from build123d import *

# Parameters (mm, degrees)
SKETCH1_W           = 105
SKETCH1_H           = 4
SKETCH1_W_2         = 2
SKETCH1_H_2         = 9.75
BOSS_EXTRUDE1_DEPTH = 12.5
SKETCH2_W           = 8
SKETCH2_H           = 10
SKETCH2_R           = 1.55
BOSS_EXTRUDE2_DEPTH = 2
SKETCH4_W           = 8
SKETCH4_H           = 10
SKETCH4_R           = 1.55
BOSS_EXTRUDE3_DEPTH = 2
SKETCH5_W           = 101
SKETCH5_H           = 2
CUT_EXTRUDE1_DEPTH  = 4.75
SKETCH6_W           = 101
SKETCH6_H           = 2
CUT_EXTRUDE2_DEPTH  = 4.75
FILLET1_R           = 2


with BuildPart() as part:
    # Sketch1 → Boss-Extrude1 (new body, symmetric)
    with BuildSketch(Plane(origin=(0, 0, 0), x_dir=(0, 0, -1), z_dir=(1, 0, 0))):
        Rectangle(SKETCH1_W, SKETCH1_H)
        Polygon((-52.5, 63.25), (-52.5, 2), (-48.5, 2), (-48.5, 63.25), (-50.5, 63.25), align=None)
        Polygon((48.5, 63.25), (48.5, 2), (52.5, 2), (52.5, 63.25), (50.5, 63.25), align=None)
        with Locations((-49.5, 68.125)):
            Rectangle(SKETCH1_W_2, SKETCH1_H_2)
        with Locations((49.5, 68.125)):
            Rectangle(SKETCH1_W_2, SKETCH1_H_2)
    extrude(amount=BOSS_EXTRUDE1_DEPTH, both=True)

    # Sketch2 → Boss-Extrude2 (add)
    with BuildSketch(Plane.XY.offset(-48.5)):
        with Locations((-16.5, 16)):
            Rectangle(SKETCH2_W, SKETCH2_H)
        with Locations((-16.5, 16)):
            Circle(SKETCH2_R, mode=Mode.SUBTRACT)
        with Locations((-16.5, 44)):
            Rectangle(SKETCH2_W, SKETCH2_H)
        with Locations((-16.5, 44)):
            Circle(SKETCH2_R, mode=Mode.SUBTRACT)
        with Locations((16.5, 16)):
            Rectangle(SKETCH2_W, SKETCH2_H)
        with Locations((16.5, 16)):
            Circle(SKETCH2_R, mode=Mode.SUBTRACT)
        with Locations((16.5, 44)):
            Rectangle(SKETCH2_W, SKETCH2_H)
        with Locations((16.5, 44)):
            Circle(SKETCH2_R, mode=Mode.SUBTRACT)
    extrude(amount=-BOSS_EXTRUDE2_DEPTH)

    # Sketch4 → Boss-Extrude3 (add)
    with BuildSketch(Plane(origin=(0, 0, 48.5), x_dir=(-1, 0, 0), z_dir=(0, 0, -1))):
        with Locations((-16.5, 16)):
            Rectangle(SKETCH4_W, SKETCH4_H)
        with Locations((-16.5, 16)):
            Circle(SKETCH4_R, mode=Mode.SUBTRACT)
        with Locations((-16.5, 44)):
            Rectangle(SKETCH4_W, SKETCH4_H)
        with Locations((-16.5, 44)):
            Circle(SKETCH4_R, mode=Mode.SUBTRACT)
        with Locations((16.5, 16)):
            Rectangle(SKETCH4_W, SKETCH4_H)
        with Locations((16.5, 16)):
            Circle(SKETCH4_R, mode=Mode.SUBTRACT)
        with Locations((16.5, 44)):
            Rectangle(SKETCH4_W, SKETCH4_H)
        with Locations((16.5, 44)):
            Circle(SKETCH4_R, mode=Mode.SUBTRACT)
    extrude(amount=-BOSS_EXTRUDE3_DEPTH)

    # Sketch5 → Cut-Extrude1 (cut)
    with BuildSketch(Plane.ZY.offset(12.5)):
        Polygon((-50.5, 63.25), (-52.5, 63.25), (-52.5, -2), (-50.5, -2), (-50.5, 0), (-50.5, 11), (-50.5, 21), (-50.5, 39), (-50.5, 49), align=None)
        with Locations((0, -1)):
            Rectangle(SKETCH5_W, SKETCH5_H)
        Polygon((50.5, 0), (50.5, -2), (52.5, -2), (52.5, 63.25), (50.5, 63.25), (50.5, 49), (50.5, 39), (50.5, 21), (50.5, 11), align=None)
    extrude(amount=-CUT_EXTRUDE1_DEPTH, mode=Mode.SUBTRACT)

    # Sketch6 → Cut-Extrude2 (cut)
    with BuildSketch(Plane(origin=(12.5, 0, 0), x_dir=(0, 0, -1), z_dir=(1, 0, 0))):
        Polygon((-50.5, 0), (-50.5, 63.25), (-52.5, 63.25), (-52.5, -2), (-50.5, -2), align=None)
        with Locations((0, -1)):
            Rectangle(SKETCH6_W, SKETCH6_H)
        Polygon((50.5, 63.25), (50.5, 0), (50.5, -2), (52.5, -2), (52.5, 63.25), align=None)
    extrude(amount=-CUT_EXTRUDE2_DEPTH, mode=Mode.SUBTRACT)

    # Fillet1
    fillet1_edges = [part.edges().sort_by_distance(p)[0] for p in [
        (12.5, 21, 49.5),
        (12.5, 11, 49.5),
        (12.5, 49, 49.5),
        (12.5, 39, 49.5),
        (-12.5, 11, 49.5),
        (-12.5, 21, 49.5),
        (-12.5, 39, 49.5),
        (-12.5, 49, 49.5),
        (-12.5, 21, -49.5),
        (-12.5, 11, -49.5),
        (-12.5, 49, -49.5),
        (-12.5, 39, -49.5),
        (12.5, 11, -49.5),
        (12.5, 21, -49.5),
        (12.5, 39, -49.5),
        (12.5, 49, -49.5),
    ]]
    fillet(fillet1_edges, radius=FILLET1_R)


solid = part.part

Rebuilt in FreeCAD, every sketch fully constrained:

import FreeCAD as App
import Part
import Sketcher
Q = App.Units.Quantity


def edges_at(feature, points):
    """Names of the edges that pass closest to the given points."""
    edges = feature.Shape.Edges
    near = lambda p: min(range(len(edges)), key=lambda i: edges[i].distToShape(Part.Vertex(*p))[0])
    return sorted({f"Edge{near(p) + 1}" for p in points})


def add_polygon(sketch, points):
    """Adds a closed chain of lines whose ends are joined by coincident constraints."""
    first, n = sketch.GeometryCount, len(points)
    for a, b in zip(points, points[1:] + points[:1]):
        sketch.addGeometry(Part.LineSegment(App.Vector(*a, 0), App.Vector(*b, 0)), False)
    for i in range(n):
        sketch.addConstraint(Sketcher.Constraint("Coincident", first + i, 2, first + (i + 1) % n, 1))

doc = App.newDocument("Part")
params = doc.addObject("Spreadsheet::Sheet", "Params")
for row, (alias, value) in enumerate([
    ("sketch1_width", "71 mm"),
    ("sketch1_height", "105 mm"),
    ("sketch1_height2", "2 mm"),
    ("sketch1_width2", "65.25 mm"),
    ("pad1_length", "25 mm"),
    ("sketch2_diameter", "3.1 mm"),
    ("sketch2_width", "8 mm"),
    ("sketch2_height", "10 mm"),
    ("pad2_length", "2 mm"),
    ("sketch3_diameter", "3.1 mm"),
    ("sketch3_width", "8 mm"),
    ("sketch3_height", "10 mm"),
    ("pad3_length", "2 mm"),
    ("sketch4_height", "2 mm"),
    ("sketch4_height2", "105 mm"),
    ("sketch4_width", "65.25 mm"),
    ("pocket1_length", "4.75 mm"),
    ("sketch5_height", "2 mm"),
    ("sketch5_height2", "105 mm"),
    ("sketch5_width", "65.25 mm"),
    ("pocket2_length", "4.75 mm"),
    ("fillet_radius", "2 mm"),
], start=1):
    params.set(f"A{row}", alias)
    params.set(f"B{row}", "=" + value)
    params.setAlias(f"B{row}", alias)

body = doc.addObject("PartDesign::Body", "Body")

sketch1 = body.newObject("Sketcher::SketchObject", "Sketch")
sketch1.AttachmentSupport = (doc.getObject("YZ_Plane"), [""])
sketch1.MapMode = "FlatFace"
add_polygon(sketch1, [(-2, 52.5), (-2, -52.5), (63.25, -52.5), (63.25, -50.5), (73, -50.5), (73, -48.5), (2, -48.5), (2, 48.5), (73, 48.5), (73, 50.5), (63.25, 50.5), (63.25, 52.5)])
sketch1.addConstraint(Sketcher.Constraint("Vertical", 0))
sketch1.addConstraint(Sketcher.Constraint("Horizontal", 1))
sketch1.addConstraint(Sketcher.Constraint("Vertical", 2))
sketch1.addConstraint(Sketcher.Constraint("Horizontal", 3))
sketch1.addConstraint(Sketcher.Constraint("Vertical", 4))
sketch1.addConstraint(Sketcher.Constraint("Horizontal", 5))
sketch1.addConstraint(Sketcher.Constraint("Vertical", 6))
sketch1.addConstraint(Sketcher.Constraint("Horizontal", 7))
sketch1.addConstraint(Sketcher.Constraint("Vertical", 8))
sketch1.addConstraint(Sketcher.Constraint("Horizontal", 9))
sketch1.addConstraint(Sketcher.Constraint("Vertical", 10))
sketch1.addConstraint(Sketcher.Constraint("Horizontal", 11))
sketch1.addConstraint(Sketcher.Constraint("Symmetric", 4, 2, 7, 2, -1))
sketch1.addConstraint(Sketcher.Constraint("Symmetric", 2, 2, 9, 2, -1))
sketch1.addConstraint(Sketcher.Constraint("Equal", 2, 4))
sketch1.addConstraint(Sketcher.Constraint("Equal", 8, 10))
sketch1.addConstraint(Sketcher.Constraint("DistanceX", 5, 2, 5, 1, Q("71 mm")))
sketch1.addConstraint(Sketcher.Constraint("DistanceY", 0, 2, 0, 1, Q("105 mm")))
sketch1.addConstraint(Sketcher.Constraint("DistanceY", 2, 1, 2, 2, Q("2 mm")))
sketch1.addConstraint(Sketcher.Constraint("DistanceX", 0, 2, -1, 1, Q("2 mm")))
sketch1.addConstraint(Sketcher.Constraint("DistanceX", -1, 1, 3, 2, Q("73 mm")))
sketch1.addConstraint(Sketcher.Constraint("DistanceX", 1, 1, 1, 2, Q("65.25 mm")))
sketch1.setExpression("Constraints[28]", "Params.sketch1_width")
sketch1.setExpression("Constraints[29]", "Params.sketch1_height")
sketch1.setExpression("Constraints[30]", "Params.sketch1_height2")
sketch1.setExpression("Constraints[33]", "Params.sketch1_width2")
pad1 = body.newObject("PartDesign::Pad", "Pad")
pad1.Profile = sketch1
pad1.setExpression("Length", "Params.pad1_length")
pad1.Midplane = True

sketch2 = body.newObject("Sketcher::SketchObject", "Sketch001")
sketch2.AttachmentSupport = (doc.getObject("XY_Plane"), [""])
sketch2.MapMode = "FlatFace"
sketch2.AttachmentOffset = App.Placement(App.Vector(0, 0, -48.5), App.Rotation())
add_polygon(sketch2, [(-20.5, 21), (-20.5, 11), (-12.5, 11), (-12.5, 21)])
sketch2.addGeometry(Part.Circle(App.Vector(-16.5, 16, 0), App.Vector(0, 0, 1), 1.55), False)
add_polygon(sketch2, [(-20.5, 49), (-20.5, 39), (-12.5, 39), (-12.5, 49)])
sketch2.addGeometry(Part.Circle(App.Vector(-16.5, 44, 0), App.Vector(0, 0, 1), 1.55), False)
add_polygon(sketch2, [(12.5, 21), (12.5, 11), (20.5, 11), (20.5, 21)])
sketch2.addGeometry(Part.Circle(App.Vector(16.5, 16, 0), App.Vector(0, 0, 1), 1.55), False)
add_polygon(sketch2, [(12.5, 49), (12.5, 39), (20.5, 39), (20.5, 49)])
sketch2.addGeometry(Part.Circle(App.Vector(16.5, 44, 0), App.Vector(0, 0, 1), 1.55), False)
sketch2.addConstraint(Sketcher.Constraint("Vertical", 0))
sketch2.addConstraint(Sketcher.Constraint("Horizontal", 1))
sketch2.addConstraint(Sketcher.Constraint("Vertical", 2))
sketch2.addConstraint(Sketcher.Constraint("Horizontal", 3))
sketch2.addConstraint(Sketcher.Constraint("Vertical", 5))
sketch2.addConstraint(Sketcher.Constraint("Horizontal", 6))
sketch2.addConstraint(Sketcher.Constraint("Vertical", 7))
sketch2.addConstraint(Sketcher.Constraint("Horizontal", 8))
sketch2.addConstraint(Sketcher.Constraint("Vertical", 10))
sketch2.addConstraint(Sketcher.Constraint("Horizontal", 11))
sketch2.addConstraint(Sketcher.Constraint("Vertical", 12))
sketch2.addConstraint(Sketcher.Constraint("Horizontal", 13))
sketch2.addConstraint(Sketcher.Constraint("Vertical", 15))
sketch2.addConstraint(Sketcher.Constraint("Horizontal", 16))
sketch2.addConstraint(Sketcher.Constraint("Vertical", 17))
sketch2.addConstraint(Sketcher.Constraint("Horizontal", 18))
sketch2.addConstraint(Sketcher.Constraint("Equal", 4, 9))
sketch2.addConstraint(Sketcher.Constraint("Equal", 9, 14))
sketch2.addConstraint(Sketcher.Constraint("Equal", 14, 19))
sketch2.addConstraint(Sketcher.Constraint("Symmetric", 4, 3, 14, 3, -2))
sketch2.addConstraint(Sketcher.Constraint("Symmetric", 9, 3, 19, 3, -2))
sketch2.addConstraint(Sketcher.Constraint("Symmetric", 1, 2, 10, 2, -2))
sketch2.addConstraint(Sketcher.Constraint("Symmetric", 3, 2, 12, 2, -2))
sketch2.addConstraint(Sketcher.Constraint("Symmetric", 6, 2, 15, 2, -2))
sketch2.addConstraint(Sketcher.Constraint("Symmetric", 8, 2, 17, 2, -2))
sketch2.addConstraint(Sketcher.Constraint("Vertical", 4, 3, 9, 3))
sketch2.addConstraint(Sketcher.Constraint("Vertical", 3, 2, 5, 2))
sketch2.addConstraint(Sketcher.Constraint("Vertical", 2, 2, 6, 2))
sketch2.addConstraint(Sketcher.Constraint("Equal", 2, 5))
sketch2.addConstraint(Sketcher.Constraint("Diameter", 4, Q("3.1 mm")))
sketch2.addConstraint(Sketcher.Constraint("DistanceX", 1, 1, 1, 2, Q("8 mm")))
sketch2.addConstraint(Sketcher.Constraint("DistanceY", 0, 2, 0, 1, Q("10 mm")))
sketch2.addConstraint(Sketcher.Constraint("DistanceY", -1, 1, 4, 3, Q("16 mm")))
sketch2.addConstraint(Sketcher.Constraint("DistanceY", -1, 1, 9, 3, Q("44 mm")))
sketch2.addConstraint(Sketcher.Constraint("DistanceY", -1, 1, 0, 2, Q("11 mm")))
sketch2.addConstraint(Sketcher.Constraint("DistanceY", -1, 1, 5, 2, Q("39 mm")))
sketch2.addConstraint(Sketcher.Constraint("DistanceX", 4, 3, 14, 3, Q("33 mm")))
sketch2.addConstraint(Sketcher.Constraint("DistanceX", 0, 2, 4, 3, Q("4 mm")))
sketch2.setExpression("Constraints[45]", "Params.sketch2_diameter")
sketch2.setExpression("Constraints[46]", "Params.sketch2_width")
sketch2.setExpression("Constraints[47]", "Params.sketch2_height")
pad2 = body.newObject("PartDesign::Pad", "Pad001")
pad2.Profile = sketch2
pad2.setExpression("Length", "Params.pad2_length")
pad2.Reversed = True

sketch3 = body.newObject("Sketcher::SketchObject", "Sketch002")
sketch3.AttachmentSupport = (doc.getObject("XY_Plane"), [""])
sketch3.MapMode = "FlatFace"
sketch3.AttachmentOffset = App.Placement(App.Vector(0, 0, 48.5), App.Rotation())
add_polygon(sketch3, [(20.5, 21), (20.5, 11), (12.5, 11), (12.5, 21)])
sketch3.addGeometry(Part.Circle(App.Vector(16.5, 16, 0), App.Vector(0, 0, 1), 1.55), False)
add_polygon(sketch3, [(20.5, 49), (20.5, 39), (12.5, 39), (12.5, 49)])
sketch3.addGeometry(Part.Circle(App.Vector(16.5, 44, 0), App.Vector(0, 0, 1), 1.55), False)
add_polygon(sketch3, [(-12.5, 21), (-12.5, 11), (-20.5, 11), (-20.5, 21)])
sketch3.addGeometry(Part.Circle(App.Vector(-16.5, 16, 0), App.Vector(0, 0, 1), 1.55), False)
add_polygon(sketch3, [(-12.5, 49), (-12.5, 39), (-20.5, 39), (-20.5, 49)])
sketch3.addGeometry(Part.Circle(App.Vector(-16.5, 44, 0), App.Vector(0, 0, 1), 1.55), False)
sketch3.addConstraint(Sketcher.Constraint("Vertical", 0))
sketch3.addConstraint(Sketcher.Constraint("Horizontal", 1))
sketch3.addConstraint(Sketcher.Constraint("Vertical", 2))
sketch3.addConstraint(Sketcher.Constraint("Horizontal", 3))
sketch3.addConstraint(Sketcher.Constraint("Vertical", 5))
sketch3.addConstraint(Sketcher.Constraint("Horizontal", 6))
sketch3.addConstraint(Sketcher.Constraint("Vertical", 7))
sketch3.addConstraint(Sketcher.Constraint("Horizontal", 8))
sketch3.addConstraint(Sketcher.Constraint("Vertical", 10))
sketch3.addConstraint(Sketcher.Constraint("Horizontal", 11))
sketch3.addConstraint(Sketcher.Constraint("Vertical", 12))
sketch3.addConstraint(Sketcher.Constraint("Horizontal", 13))
sketch3.addConstraint(Sketcher.Constraint("Vertical", 15))
sketch3.addConstraint(Sketcher.Constraint("Horizontal", 16))
sketch3.addConstraint(Sketcher.Constraint("Vertical", 17))
sketch3.addConstraint(Sketcher.Constraint("Horizontal", 18))
sketch3.addConstraint(Sketcher.Constraint("Equal", 4, 9))
sketch3.addConstraint(Sketcher.Constraint("Equal", 9, 14))
sketch3.addConstraint(Sketcher.Constraint("Equal", 14, 19))
sketch3.addConstraint(Sketcher.Constraint("Symmetric", 4, 3, 14, 3, -2))
sketch3.addConstraint(Sketcher.Constraint("Symmetric", 9, 3, 19, 3, -2))
sketch3.addConstraint(Sketcher.Constraint("Symmetric", 1, 2, 10, 2, -2))
sketch3.addConstraint(Sketcher.Constraint("Symmetric", 3, 2, 12, 2, -2))
sketch3.addConstraint(Sketcher.Constraint("Symmetric", 6, 2, 15, 2, -2))
sketch3.addConstraint(Sketcher.Constraint("Symmetric", 8, 2, 17, 2, -2))
sketch3.addConstraint(Sketcher.Constraint("Vertical", 4, 3, 9, 3))
sketch3.addConstraint(Sketcher.Constraint("Vertical", 3, 2, 5, 2))
sketch3.addConstraint(Sketcher.Constraint("Vertical", 2, 2, 6, 2))
sketch3.addConstraint(Sketcher.Constraint("Equal", 2, 5))
sketch3.addConstraint(Sketcher.Constraint("Diameter", 4, Q("3.1 mm")))
sketch3.addConstraint(Sketcher.Constraint("DistanceX", 1, 2, 1, 1, Q("8 mm")))
sketch3.addConstraint(Sketcher.Constraint("DistanceY", 0, 2, 0, 1, Q("10 mm")))
sketch3.addConstraint(Sketcher.Constraint("DistanceY", -1, 1, 4, 3, Q("16 mm")))
sketch3.addConstraint(Sketcher.Constraint("DistanceY", -1, 1, 9, 3, Q("44 mm")))
sketch3.addConstraint(Sketcher.Constraint("DistanceY", -1, 1, 0, 2, Q("11 mm")))
sketch3.addConstraint(Sketcher.Constraint("DistanceY", -1, 1, 5, 2, Q("39 mm")))
sketch3.addConstraint(Sketcher.Constraint("DistanceX", 14, 3, 4, 3, Q("33 mm")))
sketch3.addConstraint(Sketcher.Constraint("DistanceX", 4, 3, 0, 2, Q("4 mm")))
sketch3.setExpression("Constraints[45]", "Params.sketch3_diameter")
sketch3.setExpression("Constraints[46]", "Params.sketch3_width")
sketch3.setExpression("Constraints[47]", "Params.sketch3_height")
pad3 = body.newObject("PartDesign::Pad", "Pad002")
pad3.Profile = sketch3
pad3.setExpression("Length", "Params.pad3_length")

sketch4 = body.newObject("Sketcher::SketchObject", "Sketch003")
sketch4.AttachmentSupport = (doc.getObject("YZ_Plane"), [""])
sketch4.MapMode = "FlatFace"
sketch4.AttachmentOffset = App.Placement(App.Vector(0, 0, -12.5), App.Rotation())
add_polygon(sketch4, [(63.25, -50.5), (63.25, -52.5), (-2, -52.5), (-2, 52.5), (63.25, 52.5), (63.25, 50.5), (0, 50.5), (0, -50.5)])
sketch4.addConstraint(Sketcher.Constraint("Vertical", 0))
sketch4.addConstraint(Sketcher.Constraint("Horizontal", 1))
sketch4.addConstraint(Sketcher.Constraint("Vertical", 2))
sketch4.addConstraint(Sketcher.Constraint("Horizontal", 3))
sketch4.addConstraint(Sketcher.Constraint("Vertical", 4))
sketch4.addConstraint(Sketcher.Constraint("Horizontal", 5))
sketch4.addConstraint(Sketcher.Constraint("Vertical", 6))
sketch4.addConstraint(Sketcher.Constraint("Horizontal", 7))
sketch4.addConstraint(Sketcher.Constraint("Symmetric", 5, 2, 6, 2, -1, 1))
sketch4.addConstraint(Sketcher.Constraint("Symmetric", 0, 2, 3, 2, -1))
sketch4.addConstraint(Sketcher.Constraint("DistanceY", 0, 2, 0, 1, Q("2 mm")))
sketch4.addConstraint(Sketcher.Constraint("DistanceY", 2, 1, 2, 2, Q("105 mm")))
sketch4.addConstraint(Sketcher.Constraint("DistanceX", 1, 2, -1, 1, Q("2 mm")))
sketch4.addConstraint(Sketcher.Constraint("DistanceX", 1, 2, 1, 1, Q("65.25 mm")))
sketch4.setExpression("Constraints[18]", "Params.sketch4_height")
sketch4.setExpression("Constraints[19]", "Params.sketch4_height2")
sketch4.setExpression("Constraints[21]", "Params.sketch4_width")
pocket1 = body.newObject("PartDesign::Pocket", "Pocket")
pocket1.Profile = sketch4
pocket1.setExpression("Length", "Params.pocket1_length")
pocket1.Reversed = True

sketch5 = body.newObject("Sketcher::SketchObject", "Sketch004")
sketch5.AttachmentSupport = (doc.getObject("YZ_Plane"), [""])
sketch5.MapMode = "FlatFace"
sketch5.AttachmentOffset = App.Placement(App.Vector(0, 0, 12.5), App.Rotation())
add_polygon(sketch5, [(63.25, 50.5), (63.25, 52.5), (-2, 52.5), (-2, -52.5), (63.25, -52.5), (63.25, -50.5), (0, -50.5), (0, 50.5)])
sketch5.addConstraint(Sketcher.Constraint("Vertical", 0))
sketch5.addConstraint(Sketcher.Constraint("Horizontal", 1))
sketch5.addConstraint(Sketcher.Constraint("Vertical", 2))
sketch5.addConstraint(Sketcher.Constraint("Horizontal", 3))
sketch5.addConstraint(Sketcher.Constraint("Vertical", 4))
sketch5.addConstraint(Sketcher.Constraint("Horizontal", 5))
sketch5.addConstraint(Sketcher.Constraint("Vertical", 6))
sketch5.addConstraint(Sketcher.Constraint("Horizontal", 7))
sketch5.addConstraint(Sketcher.Constraint("Symmetric", 5, 2, 6, 2, -1, 1))
sketch5.addConstraint(Sketcher.Constraint("Symmetric", 0, 2, 3, 2, -1))
sketch5.addConstraint(Sketcher.Constraint("DistanceY", 0, 1, 0, 2, Q("2 mm")))
sketch5.addConstraint(Sketcher.Constraint("DistanceY", 2, 2, 2, 1, Q("105 mm")))
sketch5.addConstraint(Sketcher.Constraint("DistanceX", 1, 2, -1, 1, Q("2 mm")))
sketch5.addConstraint(Sketcher.Constraint("DistanceX", 1, 2, 1, 1, Q("65.25 mm")))
sketch5.setExpression("Constraints[18]", "Params.sketch5_height")
sketch5.setExpression("Constraints[19]", "Params.sketch5_height2")
sketch5.setExpression("Constraints[21]", "Params.sketch5_width")
pocket2 = body.newObject("PartDesign::Pocket", "Pocket001")
pocket2.Profile = sketch5
pocket2.setExpression("Length", "Params.pocket2_length")
doc.recompute()

fillet = body.newObject("PartDesign::Fillet", "Fillet")
fillet.Base = (pocket2, edges_at(pocket2, [
    (12.5, 21, 49.5),
    (12.5, 11, 49.5),
    (12.5, 49, 49.5),
    (12.5, 39, 49.5),
    (-12.5, 11, 49.5),
    (-12.5, 21, 49.5),
    (-12.5, 39, 49.5),
    (-12.5, 49, 49.5),
    (-12.5, 21, -49.5),
    (-12.5, 11, -49.5),
    (-12.5, 49, -49.5),
    (-12.5, 39, -49.5),
    (12.5, 11, -49.5),
    (12.5, 21, -49.5),
    (12.5, 39, -49.5),
    (12.5, 49, -49.5),
]))
fillet.setExpression("Radius", "Params.fillet_radius")

doc.recompute()
